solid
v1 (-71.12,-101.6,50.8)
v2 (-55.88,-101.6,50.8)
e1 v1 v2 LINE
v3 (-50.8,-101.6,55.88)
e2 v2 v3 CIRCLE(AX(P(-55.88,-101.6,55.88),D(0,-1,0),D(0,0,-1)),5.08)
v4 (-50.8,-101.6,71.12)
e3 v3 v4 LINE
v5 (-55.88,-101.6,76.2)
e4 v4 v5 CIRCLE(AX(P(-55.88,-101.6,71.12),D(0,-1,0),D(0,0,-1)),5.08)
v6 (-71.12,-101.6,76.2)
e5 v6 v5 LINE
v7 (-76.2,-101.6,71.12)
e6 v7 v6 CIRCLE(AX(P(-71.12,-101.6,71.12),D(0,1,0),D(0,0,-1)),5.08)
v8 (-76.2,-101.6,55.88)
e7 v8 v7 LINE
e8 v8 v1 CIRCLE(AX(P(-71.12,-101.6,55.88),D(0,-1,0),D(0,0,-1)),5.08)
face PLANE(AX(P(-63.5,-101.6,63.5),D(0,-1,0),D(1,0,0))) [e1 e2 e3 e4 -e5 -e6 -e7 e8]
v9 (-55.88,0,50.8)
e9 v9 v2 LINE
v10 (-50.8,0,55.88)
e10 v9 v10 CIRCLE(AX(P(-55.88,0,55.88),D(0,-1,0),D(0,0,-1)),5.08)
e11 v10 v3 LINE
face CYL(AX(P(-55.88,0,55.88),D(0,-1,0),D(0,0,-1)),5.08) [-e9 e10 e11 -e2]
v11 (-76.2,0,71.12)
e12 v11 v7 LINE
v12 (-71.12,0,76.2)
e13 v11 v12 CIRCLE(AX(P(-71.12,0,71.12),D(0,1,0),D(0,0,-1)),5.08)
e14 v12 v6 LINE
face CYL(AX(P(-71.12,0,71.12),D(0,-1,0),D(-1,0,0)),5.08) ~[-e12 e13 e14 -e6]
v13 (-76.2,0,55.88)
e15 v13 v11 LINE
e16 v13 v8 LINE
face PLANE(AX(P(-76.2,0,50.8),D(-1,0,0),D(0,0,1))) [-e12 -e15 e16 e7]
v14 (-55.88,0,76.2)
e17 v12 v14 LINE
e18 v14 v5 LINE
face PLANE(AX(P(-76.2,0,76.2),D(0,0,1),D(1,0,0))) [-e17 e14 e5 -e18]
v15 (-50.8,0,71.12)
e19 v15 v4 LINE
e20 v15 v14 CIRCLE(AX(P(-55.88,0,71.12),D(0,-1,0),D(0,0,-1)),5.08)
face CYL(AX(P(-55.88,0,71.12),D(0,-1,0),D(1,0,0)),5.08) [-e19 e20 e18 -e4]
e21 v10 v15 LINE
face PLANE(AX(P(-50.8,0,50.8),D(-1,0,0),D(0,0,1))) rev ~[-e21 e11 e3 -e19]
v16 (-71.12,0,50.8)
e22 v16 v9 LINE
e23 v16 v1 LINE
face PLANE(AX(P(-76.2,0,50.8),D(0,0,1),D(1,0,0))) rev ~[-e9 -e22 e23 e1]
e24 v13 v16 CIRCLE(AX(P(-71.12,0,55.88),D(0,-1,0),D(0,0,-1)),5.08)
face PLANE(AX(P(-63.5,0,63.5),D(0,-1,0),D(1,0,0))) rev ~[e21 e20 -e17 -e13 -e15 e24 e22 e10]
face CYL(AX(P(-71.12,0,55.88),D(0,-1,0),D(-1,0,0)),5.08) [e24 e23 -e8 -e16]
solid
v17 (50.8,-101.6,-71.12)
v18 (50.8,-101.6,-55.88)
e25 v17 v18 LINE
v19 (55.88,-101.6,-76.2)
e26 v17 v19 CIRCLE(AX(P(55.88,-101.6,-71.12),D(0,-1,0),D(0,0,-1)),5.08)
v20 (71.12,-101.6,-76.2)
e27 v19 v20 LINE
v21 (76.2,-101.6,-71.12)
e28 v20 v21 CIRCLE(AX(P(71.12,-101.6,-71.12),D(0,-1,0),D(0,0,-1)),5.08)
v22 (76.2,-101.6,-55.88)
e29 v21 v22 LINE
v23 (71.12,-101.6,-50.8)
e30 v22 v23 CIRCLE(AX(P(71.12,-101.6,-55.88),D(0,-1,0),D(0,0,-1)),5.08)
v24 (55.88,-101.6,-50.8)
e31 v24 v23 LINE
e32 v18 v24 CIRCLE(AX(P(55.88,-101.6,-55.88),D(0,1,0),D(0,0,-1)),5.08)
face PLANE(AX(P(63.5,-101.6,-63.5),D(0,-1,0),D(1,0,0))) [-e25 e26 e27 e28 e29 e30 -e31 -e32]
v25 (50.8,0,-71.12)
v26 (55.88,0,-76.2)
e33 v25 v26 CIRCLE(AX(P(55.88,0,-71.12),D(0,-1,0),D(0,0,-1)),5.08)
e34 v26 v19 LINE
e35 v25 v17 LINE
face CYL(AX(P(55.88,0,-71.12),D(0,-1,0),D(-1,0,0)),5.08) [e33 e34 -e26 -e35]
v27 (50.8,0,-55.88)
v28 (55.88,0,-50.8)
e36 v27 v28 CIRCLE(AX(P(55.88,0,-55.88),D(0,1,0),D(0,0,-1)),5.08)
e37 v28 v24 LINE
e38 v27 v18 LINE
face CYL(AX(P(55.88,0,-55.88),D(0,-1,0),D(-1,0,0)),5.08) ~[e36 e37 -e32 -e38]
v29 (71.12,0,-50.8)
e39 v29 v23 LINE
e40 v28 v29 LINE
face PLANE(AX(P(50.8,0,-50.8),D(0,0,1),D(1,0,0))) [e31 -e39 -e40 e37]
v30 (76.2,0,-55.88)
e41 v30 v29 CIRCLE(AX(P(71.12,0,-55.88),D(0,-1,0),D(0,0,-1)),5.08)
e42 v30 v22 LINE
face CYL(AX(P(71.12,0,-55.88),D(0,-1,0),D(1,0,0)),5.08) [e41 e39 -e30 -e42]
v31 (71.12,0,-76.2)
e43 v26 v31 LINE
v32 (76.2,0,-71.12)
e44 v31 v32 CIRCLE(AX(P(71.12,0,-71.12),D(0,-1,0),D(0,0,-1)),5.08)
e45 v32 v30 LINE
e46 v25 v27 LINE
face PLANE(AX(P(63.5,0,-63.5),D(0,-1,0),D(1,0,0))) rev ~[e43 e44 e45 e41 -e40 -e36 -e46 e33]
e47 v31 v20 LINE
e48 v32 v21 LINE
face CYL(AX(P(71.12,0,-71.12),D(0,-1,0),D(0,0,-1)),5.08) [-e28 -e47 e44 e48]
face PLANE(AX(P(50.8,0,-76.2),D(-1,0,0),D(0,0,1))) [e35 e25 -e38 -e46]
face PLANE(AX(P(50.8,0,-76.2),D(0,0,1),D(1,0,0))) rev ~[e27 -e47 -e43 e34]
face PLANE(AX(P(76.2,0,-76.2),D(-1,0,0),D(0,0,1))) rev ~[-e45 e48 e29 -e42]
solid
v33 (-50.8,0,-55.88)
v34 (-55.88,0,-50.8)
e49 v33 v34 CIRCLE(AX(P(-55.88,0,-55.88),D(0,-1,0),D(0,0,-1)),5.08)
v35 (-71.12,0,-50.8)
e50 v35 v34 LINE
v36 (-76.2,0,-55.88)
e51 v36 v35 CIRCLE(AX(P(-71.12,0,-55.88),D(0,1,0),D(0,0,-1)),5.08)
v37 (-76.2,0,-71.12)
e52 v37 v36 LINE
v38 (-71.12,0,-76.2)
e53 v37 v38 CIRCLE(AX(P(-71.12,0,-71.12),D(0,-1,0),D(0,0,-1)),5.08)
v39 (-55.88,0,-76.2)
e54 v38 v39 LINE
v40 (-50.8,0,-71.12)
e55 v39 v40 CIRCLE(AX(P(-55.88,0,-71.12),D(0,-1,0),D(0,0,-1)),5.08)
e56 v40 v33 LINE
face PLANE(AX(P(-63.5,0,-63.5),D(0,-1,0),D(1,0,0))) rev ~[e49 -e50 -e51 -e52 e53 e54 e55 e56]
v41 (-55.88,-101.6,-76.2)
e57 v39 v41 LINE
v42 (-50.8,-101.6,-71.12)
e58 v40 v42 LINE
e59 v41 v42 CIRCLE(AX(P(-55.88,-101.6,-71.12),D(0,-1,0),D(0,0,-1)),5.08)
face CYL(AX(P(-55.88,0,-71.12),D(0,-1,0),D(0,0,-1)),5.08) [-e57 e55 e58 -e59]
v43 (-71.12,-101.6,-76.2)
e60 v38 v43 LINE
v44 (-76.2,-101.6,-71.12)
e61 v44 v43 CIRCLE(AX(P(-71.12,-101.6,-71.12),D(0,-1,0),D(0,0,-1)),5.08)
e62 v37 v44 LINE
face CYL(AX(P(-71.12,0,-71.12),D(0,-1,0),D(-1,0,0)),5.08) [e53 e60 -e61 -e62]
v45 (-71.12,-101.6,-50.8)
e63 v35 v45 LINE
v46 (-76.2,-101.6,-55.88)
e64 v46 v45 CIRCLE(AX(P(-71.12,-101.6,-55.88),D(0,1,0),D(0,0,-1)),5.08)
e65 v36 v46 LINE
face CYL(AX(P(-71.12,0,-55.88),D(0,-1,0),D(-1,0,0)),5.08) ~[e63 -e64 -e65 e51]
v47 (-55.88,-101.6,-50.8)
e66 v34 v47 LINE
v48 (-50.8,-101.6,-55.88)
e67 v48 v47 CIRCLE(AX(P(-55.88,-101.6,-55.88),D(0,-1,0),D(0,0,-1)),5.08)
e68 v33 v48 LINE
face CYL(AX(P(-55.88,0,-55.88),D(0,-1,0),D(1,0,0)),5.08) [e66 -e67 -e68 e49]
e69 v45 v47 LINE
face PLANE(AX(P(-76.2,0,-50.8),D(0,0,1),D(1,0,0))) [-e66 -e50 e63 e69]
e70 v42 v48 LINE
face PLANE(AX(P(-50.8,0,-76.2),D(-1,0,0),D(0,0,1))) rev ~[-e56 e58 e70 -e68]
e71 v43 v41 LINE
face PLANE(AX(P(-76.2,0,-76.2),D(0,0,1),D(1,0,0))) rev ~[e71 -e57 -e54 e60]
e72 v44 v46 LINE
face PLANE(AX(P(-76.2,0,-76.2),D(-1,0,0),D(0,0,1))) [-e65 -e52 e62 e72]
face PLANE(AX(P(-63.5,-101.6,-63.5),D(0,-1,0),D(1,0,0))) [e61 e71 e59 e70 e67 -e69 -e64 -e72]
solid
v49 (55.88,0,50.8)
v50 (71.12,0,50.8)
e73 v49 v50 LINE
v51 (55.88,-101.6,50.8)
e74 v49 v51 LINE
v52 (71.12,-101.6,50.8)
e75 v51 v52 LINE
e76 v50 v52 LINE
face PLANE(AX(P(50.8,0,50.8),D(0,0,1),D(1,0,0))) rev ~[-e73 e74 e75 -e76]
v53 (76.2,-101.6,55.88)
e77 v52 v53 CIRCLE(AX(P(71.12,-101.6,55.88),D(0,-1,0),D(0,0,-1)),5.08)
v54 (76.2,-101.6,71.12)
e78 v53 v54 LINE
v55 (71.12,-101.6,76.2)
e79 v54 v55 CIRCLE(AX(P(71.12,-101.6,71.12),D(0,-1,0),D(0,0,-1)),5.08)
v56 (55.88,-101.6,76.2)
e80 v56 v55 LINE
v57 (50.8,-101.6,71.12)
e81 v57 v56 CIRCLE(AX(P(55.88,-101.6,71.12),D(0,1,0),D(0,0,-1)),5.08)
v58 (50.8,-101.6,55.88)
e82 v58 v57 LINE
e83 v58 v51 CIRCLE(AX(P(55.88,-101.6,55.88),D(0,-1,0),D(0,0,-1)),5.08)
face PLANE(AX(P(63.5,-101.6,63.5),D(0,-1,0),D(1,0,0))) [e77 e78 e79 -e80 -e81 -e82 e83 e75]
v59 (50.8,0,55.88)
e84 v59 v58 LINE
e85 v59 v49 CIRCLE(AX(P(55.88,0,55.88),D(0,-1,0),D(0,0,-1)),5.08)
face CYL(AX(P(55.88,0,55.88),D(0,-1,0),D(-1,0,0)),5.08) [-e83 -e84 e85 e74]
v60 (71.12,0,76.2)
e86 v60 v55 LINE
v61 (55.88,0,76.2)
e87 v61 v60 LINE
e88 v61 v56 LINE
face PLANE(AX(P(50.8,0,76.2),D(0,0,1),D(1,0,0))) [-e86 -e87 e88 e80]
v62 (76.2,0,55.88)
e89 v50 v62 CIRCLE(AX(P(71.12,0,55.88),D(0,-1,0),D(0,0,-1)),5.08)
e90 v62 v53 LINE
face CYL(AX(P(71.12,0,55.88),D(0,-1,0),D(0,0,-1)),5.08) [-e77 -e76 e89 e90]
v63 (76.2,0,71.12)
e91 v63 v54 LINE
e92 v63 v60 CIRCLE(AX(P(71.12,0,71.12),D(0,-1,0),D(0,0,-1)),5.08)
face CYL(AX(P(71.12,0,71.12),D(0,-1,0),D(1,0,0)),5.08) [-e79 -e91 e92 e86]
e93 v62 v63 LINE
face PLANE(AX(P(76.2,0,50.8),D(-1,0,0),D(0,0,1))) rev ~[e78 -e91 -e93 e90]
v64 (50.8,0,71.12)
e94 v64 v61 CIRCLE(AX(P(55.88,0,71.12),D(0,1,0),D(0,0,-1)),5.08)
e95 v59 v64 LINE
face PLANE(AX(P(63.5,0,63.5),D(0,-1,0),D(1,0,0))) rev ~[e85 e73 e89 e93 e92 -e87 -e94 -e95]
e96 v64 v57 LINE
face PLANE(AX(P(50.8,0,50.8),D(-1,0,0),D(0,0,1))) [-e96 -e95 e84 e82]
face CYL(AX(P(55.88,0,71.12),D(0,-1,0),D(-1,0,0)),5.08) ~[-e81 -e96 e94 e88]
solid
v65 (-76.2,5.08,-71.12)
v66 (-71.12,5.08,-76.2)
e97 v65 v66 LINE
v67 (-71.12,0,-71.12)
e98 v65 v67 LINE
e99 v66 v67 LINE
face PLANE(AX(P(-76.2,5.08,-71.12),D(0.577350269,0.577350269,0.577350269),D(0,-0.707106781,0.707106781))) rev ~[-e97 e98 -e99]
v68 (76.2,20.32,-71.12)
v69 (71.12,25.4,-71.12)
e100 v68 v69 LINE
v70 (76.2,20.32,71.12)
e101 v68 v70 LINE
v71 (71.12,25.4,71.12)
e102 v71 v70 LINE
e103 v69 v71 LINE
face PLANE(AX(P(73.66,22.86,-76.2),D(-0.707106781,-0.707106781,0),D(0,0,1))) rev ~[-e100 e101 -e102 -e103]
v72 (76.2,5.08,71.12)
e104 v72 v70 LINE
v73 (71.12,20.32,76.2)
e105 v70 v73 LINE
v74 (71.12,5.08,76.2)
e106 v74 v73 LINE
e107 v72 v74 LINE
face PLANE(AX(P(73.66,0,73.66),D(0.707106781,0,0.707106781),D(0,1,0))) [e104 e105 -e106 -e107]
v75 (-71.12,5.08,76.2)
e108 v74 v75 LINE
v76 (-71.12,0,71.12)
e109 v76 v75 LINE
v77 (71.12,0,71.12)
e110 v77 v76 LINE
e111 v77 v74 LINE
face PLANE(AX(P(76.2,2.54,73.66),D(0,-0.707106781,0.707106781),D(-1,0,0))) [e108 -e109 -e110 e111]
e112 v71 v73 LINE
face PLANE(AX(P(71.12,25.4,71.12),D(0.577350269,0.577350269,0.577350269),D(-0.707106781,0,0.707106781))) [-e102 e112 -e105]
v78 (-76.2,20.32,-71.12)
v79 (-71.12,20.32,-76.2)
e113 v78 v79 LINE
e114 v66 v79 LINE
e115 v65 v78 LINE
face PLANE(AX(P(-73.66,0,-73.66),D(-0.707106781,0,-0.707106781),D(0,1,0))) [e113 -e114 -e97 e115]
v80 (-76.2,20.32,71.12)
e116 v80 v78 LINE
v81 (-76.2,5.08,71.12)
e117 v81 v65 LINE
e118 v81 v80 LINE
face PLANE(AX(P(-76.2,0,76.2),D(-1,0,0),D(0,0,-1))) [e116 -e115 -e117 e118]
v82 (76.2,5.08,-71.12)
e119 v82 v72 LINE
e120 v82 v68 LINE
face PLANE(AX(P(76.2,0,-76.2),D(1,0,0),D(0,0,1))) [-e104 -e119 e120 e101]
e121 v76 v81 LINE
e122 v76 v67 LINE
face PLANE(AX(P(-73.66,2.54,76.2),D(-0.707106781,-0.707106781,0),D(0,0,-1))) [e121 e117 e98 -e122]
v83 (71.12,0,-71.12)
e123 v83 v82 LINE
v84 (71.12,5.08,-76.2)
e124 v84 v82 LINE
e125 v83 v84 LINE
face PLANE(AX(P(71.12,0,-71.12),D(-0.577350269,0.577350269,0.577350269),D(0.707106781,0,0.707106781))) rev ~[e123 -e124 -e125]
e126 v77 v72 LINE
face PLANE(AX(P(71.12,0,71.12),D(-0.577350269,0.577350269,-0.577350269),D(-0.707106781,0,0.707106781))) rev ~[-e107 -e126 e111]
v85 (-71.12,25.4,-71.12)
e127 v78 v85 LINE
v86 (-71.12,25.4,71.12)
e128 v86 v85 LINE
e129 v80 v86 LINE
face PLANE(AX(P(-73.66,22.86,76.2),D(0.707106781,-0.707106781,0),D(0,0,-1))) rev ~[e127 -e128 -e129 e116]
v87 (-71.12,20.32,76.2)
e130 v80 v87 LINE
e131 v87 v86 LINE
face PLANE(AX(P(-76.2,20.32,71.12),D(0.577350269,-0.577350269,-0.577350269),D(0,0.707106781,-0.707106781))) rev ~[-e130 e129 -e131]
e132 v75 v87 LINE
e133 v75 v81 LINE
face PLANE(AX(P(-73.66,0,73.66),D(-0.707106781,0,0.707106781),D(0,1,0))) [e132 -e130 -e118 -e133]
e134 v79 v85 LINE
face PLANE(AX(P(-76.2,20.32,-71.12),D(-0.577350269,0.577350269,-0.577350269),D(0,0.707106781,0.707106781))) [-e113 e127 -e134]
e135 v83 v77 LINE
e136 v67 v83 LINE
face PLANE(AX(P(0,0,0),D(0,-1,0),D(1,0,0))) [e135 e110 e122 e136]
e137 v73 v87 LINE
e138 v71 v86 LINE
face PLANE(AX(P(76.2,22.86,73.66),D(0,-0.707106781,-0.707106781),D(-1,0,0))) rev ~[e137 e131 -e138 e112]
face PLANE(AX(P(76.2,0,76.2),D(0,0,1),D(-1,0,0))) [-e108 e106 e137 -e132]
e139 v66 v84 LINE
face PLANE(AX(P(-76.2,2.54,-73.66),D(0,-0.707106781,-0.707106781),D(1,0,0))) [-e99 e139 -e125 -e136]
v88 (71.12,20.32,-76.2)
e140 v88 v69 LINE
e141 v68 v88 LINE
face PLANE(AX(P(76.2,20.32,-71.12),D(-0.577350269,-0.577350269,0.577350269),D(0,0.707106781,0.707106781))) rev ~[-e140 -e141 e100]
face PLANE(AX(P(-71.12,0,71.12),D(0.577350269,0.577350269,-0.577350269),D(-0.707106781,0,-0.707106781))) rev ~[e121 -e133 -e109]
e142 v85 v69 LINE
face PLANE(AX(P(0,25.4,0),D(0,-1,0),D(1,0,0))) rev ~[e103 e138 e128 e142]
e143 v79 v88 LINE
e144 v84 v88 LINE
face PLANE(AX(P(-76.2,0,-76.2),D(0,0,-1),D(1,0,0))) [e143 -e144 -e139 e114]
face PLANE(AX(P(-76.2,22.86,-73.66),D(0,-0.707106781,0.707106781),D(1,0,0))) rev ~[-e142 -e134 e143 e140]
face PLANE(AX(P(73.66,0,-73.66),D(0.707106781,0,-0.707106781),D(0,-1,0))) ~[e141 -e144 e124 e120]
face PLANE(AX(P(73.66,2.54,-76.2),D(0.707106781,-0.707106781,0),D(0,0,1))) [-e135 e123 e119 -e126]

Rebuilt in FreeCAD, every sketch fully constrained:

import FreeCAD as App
import Part
import Sketcher
from FreeCAD import Vector
Q = App.Units.Quantity


def edges_at(feature, points):
    """Names of the edges that pass closest to the given points."""
    edges = feature.Shape.Edges
    near = lambda p: min(range(len(edges)), key=lambda i: edges[i].distToShape(Part.Vertex(*p))[0])
    return sorted({f"Edge{near(p) + 1}" for p in points})


def add_polygon(sketch, points):
    """Adds a closed chain of lines whose ends are joined by coincident constraints."""
    first, n = sketch.GeometryCount, len(points)
    for a, b in zip(points, points[1:] + points[:1]):
        sketch.addGeometry(Part.LineSegment(App.Vector(*a, 0), App.Vector(*b, 0)), False)
    for i in range(n):
        sketch.addConstraint(Sketcher.Constraint("Coincident", first + i, 2, first + (i + 1) % n, 1))

doc = App.newDocument("Part")
body = doc.addObject("PartDesign::Body", "Body")
body.AllowCompound = True

# Sketch on XZ plane
sketch1 = body.newObject("Sketcher::SketchObject", "Sketch")
sketch1.AttachmentSupport = (doc.getObject("XZ_Plane"), [""])
sketch1.MapMode = "FlatFace"
add_polygon(sketch1, [(-76.2, 76.2), (-76.2, 50.8), (-50.8, 50.8), (-50.8, 76.2)])  # lines 0-3
add_polygon(sketch1, [(50.8, 76.2), (50.8, 50.8), (76.2, 50.8), (76.2, 76.2)])  # lines 4-7
add_polygon(sketch1, [(50.8, -50.8), (50.8, -76.2), (76.2, -76.2), (76.2, -50.8)])  # lines 8-11
add_polygon(sketch1, [(-76.2, -50.8), (-76.2, -76.2), (-50.8, -76.2), (-50.8, -50.8)])  # lines 12-15
sketch1.addConstraint([
    Sketcher.Constraint("Vertical", 0),
    Sketcher.Constraint("Horizontal", 1),
    Sketcher.Constraint("Vertical", 2),
    Sketcher.Constraint("Horizontal", 3),
    Sketcher.Constraint("Vertical", 4),
    Sketcher.Constraint("Horizontal", 5),
    Sketcher.Constraint("Vertical", 6),
    Sketcher.Constraint("Horizontal", 7),
    Sketcher.Constraint("Vertical", 8),
    Sketcher.Constraint("Horizontal", 9),
    Sketcher.Constraint("Vertical", 10),
    Sketcher.Constraint("Horizontal", 11),
    Sketcher.Constraint("Vertical", 12),
    Sketcher.Constraint("Horizontal", 13),
    Sketcher.Constraint("Vertical", 14),
    Sketcher.Constraint("Horizontal", 15),
    Sketcher.Constraint("Symmetric", 2, 2, 8, 2, -1, 1),
    Sketcher.Constraint("Symmetric", 0, 2, 10, 2, -1, 1),
    Sketcher.Constraint("Symmetric", 6, 2, 12, 2, -1, 1),
    Sketcher.Constraint("Symmetric", 4, 2, 14, 2, -1, 1),
    Sketcher.Constraint("Symmetric", 1, 2, 4, 2, -2),
    Sketcher.Constraint("Symmetric", 3, 2, 6, 2, -2),
    Sketcher.Constraint("Equal", 15, 0),
    Sketcher.Constraint("DistanceX", 1, 1, 1, 2, Q("1 in")),
    Sketcher.Constraint("DistanceX", 0, 2, -1, 1, Q("3 in")),
    Sketcher.Constraint("DistanceY", -1, 1, 0, 2, Q("2 in")),
])
pad1 = body.newObject("PartDesign::Pad", "Pad")
pad1.Profile = sketch1
pad1.Length = Q("4 in")
doc.recompute()

fillet = body.newObject("PartDesign::Fillet", "Fillet")
fillet.Base = (pad1, edges_at(pad1, [
    (76.2, -50.8, -50.8),
    (76.2, -50.8, -76.2),
    (50.8, -50.8, -76.2),
    (50.8, -50.8, -50.8),
]))
fillet.Radius = Q("0.2 in")
doc.recompute()

fillet2 = body.newObject("PartDesign::Fillet", "Fillet001")
fillet2.Base = (fillet, edges_at(fillet, [
    (-76.2, -50.8, -76.2),
    (-76.2, -50.8, -50.8),
    (-50.8, -50.8, -76.2),
    (-50.8, -50.8, -50.8),
]))
fillet2.Radius = Q("0.2 in")
doc.recompute()

fillet3 = body.newObject("PartDesign::Fillet", "Fillet002")
fillet3.Base = (fillet2, edges_at(fillet2, [
    (76.2, -50.8, 50.8),
    (50.8, -50.8, 50.8),
    (76.2, -50.8, 76.2),
    (50.8, -50.8, 76.2),
]))
fillet3.Radius = Q("0.2 in")
doc.recompute()

fillet4 = body.newObject("PartDesign::Fillet", "Fillet003")
fillet4.Base = (fillet3, edges_at(fillet3, [
    (-76.2, -50.8, 76.2),
    (-50.8, -50.8, 76.2),
    (-50.8, -50.8, 50.8),
    (-76.2, -50.8, 50.8),
]))
fillet4.Radius = Q("0.2 in")
body2 = doc.addObject("PartDesign::Body", "Body001")

# Sketch on XZ plane
sketch2 = body2.newObject("Sketcher::SketchObject", "Sketch001")
sketch2.AttachmentSupport = (doc.getObject("XZ_Plane001"), [""])
sketch2.MapMode = "FlatFace"
add_polygon(sketch2, [(76.2, -76.2), (76.2, 76.2), (-76.2, 76.2), (-76.2, -76.2)])  # lines 0-3
sketch2.addConstraint([
    Sketcher.Constraint("Vertical", 0),
    Sketcher.Constraint("Horizontal", 1),
    Sketcher.Constraint("Vertical", 2),
    Sketcher.Constraint("Horizontal", 3),
    Sketcher.Constraint("Symmetric", 0, 2, 2, 2, -1, 1),
    Sketcher.Constraint("Equal", 3, 0),
    Sketcher.Constraint("DistanceX", 1, 2, 1, 1, Q("6 in")),
])
pad2 = body2.newObject("PartDesign::Pad", "Pad001")
pad2.Profile = sketch2
pad2.Length = Q("1 in")
pad2.Reversed = True
doc.recompute()

chamfer = body2.newObject("PartDesign::Chamfer", "Chamfer")
chamfer.Base = (pad2, ["Edge1"])
chamfer.UseAllEdges = True
chamfer.Size = Q("0.2 in")

doc.recompute()
